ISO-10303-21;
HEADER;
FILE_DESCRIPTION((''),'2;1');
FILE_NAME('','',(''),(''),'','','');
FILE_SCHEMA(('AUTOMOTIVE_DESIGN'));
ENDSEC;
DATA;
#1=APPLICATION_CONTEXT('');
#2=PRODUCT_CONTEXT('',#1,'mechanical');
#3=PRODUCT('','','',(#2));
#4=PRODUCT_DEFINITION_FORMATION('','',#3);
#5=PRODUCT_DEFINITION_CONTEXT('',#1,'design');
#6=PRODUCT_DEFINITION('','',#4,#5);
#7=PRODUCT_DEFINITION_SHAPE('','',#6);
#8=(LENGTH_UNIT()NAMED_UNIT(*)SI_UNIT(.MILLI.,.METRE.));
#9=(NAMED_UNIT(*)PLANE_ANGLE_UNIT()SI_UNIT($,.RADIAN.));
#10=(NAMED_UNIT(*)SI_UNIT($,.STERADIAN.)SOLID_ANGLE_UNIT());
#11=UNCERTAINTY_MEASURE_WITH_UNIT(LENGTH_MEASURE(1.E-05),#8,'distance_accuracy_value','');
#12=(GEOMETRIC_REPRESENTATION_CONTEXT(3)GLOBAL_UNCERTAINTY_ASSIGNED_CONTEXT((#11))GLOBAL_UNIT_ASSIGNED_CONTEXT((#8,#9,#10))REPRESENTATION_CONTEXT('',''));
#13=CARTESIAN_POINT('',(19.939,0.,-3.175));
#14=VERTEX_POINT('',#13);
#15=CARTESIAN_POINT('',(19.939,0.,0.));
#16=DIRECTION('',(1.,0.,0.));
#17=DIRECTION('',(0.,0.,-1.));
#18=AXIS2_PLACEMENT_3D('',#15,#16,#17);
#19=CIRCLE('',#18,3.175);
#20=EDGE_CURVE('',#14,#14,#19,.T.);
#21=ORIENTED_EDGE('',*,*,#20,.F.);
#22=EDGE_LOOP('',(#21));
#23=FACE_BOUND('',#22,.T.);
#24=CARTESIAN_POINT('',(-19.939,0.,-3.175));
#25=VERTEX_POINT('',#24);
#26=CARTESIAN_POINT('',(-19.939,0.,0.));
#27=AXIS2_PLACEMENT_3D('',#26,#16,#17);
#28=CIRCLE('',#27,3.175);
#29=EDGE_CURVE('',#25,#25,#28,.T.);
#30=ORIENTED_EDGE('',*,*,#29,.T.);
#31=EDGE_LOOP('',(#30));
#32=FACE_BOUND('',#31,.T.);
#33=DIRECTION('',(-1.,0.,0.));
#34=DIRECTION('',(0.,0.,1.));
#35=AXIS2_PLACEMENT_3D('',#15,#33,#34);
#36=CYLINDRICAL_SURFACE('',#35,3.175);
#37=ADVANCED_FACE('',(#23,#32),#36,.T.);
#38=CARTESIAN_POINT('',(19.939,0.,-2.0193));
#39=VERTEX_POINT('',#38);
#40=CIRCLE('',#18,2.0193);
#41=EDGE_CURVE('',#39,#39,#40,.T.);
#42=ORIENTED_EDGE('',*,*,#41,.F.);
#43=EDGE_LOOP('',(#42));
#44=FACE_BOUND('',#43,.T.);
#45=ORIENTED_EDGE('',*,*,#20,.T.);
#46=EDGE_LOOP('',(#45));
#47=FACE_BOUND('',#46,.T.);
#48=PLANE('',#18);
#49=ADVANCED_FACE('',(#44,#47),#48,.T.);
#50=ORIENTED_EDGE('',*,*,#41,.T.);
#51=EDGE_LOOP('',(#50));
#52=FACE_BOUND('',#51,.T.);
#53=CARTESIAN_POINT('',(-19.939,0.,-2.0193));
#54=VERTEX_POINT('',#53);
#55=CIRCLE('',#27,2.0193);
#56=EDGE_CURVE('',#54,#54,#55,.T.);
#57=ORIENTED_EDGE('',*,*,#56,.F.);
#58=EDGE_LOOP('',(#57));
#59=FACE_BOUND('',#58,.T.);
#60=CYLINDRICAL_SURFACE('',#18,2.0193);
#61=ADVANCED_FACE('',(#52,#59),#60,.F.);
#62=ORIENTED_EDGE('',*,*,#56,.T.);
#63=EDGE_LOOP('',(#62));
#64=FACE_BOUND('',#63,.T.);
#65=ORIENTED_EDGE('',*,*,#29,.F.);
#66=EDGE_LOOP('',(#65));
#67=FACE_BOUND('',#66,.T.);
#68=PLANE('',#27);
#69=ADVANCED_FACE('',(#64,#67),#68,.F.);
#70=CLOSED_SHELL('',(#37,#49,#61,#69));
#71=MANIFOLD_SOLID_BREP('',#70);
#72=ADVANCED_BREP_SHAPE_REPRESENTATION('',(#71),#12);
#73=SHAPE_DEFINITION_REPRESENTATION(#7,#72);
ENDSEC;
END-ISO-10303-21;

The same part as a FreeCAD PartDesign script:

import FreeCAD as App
import Part
import Sketcher
from FreeCAD import Vector
Q = App.Units.Quantity

doc = App.newDocument("Part")
body = doc.addObject("PartDesign::Body", "Body")

# Sketch on YZ plane
sketch1 = doc.addObject("Sketcher::SketchObject", "Sketch")
body.addObject(sketch1)
sketch1.AttachmentSupport = (doc.YZ_Plane, [""])
sketch1.MapMode = "FlatFace"
sketch1.addGeometry([
    Part.Circle(Vector(0, 0, 0), Vector(0, 0, 1), 3.175),
    Part.Circle(Vector(0, 0, 0), Vector(0, 0, 1), 1.9304),
], False)
sketch1.addConstraint([
    Sketcher.Constraint("Coincident", 0, 3, -1, 1),
    Sketcher.Constraint("Coincident", 1, 3, -1, 1),
    Sketcher.Constraint("Diameter", 0, Q("0.25 in")),
    Sketcher.Constraint("Diameter", 1, Q("0.152 in")),
])
pad1 = doc.addObject("PartDesign::Pad", "Pad")
body.addObject(pad1)
pad1.Profile = sketch1
pad1.Length = Q("1.57 in")
pad1.Midplane = True

# Sketch on YZ plane
sketch2 = doc.addObject("Sketcher::SketchObject", "Sketch001")
body.addObject(sketch2)
sketch2.AttachmentSupport = (doc.YZ_Plane, [""])
sketch2.MapMode = "FlatFace"
sketch2.AttachmentOffset = App.Placement(Vector(0, 0, 0.785 * 25.4), App.Rotation())
sketch2.addGeometry(Part.Circle(Vector(0, 0, 0), Vector(0, 0, 1), 2.0193), False)
sketch2.addConstraint([
    Sketcher.Constraint("Coincident", 0, 3, -1, 1),
    Sketcher.Constraint("Diameter", 0, Q("0.159 in")),
])
doc.recompute()
hole = doc.addObject("PartDesign::Hole", "Hole")
body.addObject(hole)
hole.Profile = sketch2
hole.ThreadType = "None"
hole.Diameter = Q("0.159 in")
hole.DepthType = "ThroughAll"

doc.recompute()
